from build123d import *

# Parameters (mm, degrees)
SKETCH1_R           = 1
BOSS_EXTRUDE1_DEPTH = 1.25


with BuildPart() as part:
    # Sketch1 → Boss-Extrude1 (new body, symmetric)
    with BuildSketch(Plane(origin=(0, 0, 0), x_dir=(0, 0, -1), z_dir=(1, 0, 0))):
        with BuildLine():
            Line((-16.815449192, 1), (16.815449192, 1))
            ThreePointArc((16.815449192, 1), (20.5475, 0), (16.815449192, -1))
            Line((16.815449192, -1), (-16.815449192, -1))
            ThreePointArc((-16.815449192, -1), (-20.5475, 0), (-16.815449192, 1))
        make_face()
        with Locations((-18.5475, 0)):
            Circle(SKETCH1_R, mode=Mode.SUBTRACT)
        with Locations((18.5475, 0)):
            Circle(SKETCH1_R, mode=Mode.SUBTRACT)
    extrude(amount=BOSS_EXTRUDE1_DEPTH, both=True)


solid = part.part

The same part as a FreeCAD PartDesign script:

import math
import FreeCAD as App
import Part
import Sketcher
Q = App.Units.Quantity

doc = App.newDocument("Part")
body = doc.addObject("PartDesign::Body", "Body")

# Sketch on YZ plane
sketch1 = doc.addObject("Sketcher::SketchObject", "Sketch")
body.addObject(sketch1)
sketch1.AttachmentSupport = (doc.YZ_Plane, [""])
sketch1.MapMode = "FlatFace"
sketch1.addGeometry(Part.LineSegment(App.Vector(1, -16.8, 0), App.Vector(1, 16.8, 0)), False)
sketch1.addGeometry(Part.ArcOfCircle(Part.Circle(App.Vector(0, 18.5, 0), App.Vector(0, 0, 1), 2), math.radians(-60), math.radians(240)), False)
sketch1.addGeometry(Part.LineSegment(App.Vector(-1, 16.8, 0), App.Vector(-1, -16.8, 0)), False)
sketch1.addGeometry(Part.ArcOfCircle(Part.Circle(App.Vector(0, -18.5, 0), App.Vector(0, 0, 1), 2), math.radians(120), math.radians(420)), False)
sketch1.addGeometry(Part.Circle(App.Vector(0, -18.5, 0), App.Vector(0, 0, 1), 1), False)
sketch1.addGeometry(Part.Circle(App.Vector(0, 18.5, 0), App.Vector(0, 0, 1), 1), False)
sketch1.addConstraint(Sketcher.Constraint("Coincident", 0, 2, 1, 1))
sketch1.addConstraint(Sketcher.Constraint("Coincident", 1, 2, 2, 1))
sketch1.addConstraint(Sketcher.Constraint("Coincident", 2, 2, 3, 1))
sketch1.addConstraint(Sketcher.Constraint("Coincident", 3, 2, 0, 1))
sketch1.addConstraint(Sketcher.Constraint("Vertical", 0))
sketch1.addConstraint(Sketcher.Constraint("Vertical", 2))
sketch1.addConstraint(Sketcher.Constraint("Coincident", 4, 3, 3, 3))
sketch1.addConstraint(Sketcher.Constraint("Coincident", 5, 3, 1, 3))
sketch1.addConstraint(Sketcher.Constraint("Equal", 1, 3))
sketch1.addConstraint(Sketcher.Constraint("Equal", 4, 5))
sketch1.addConstraint(Sketcher.Constraint("Symmetric", 1, 3, 3, 3, -1, 1))
sketch1.addConstraint(Sketcher.Constraint("Symmetric", 0, 2, 1, 2, -2))
sketch1.addConstraint(Sketcher.Constraint("Diameter", 4, Q("2 mm")))
sketch1.addConstraint(Sketcher.Constraint("Radius", 1, Q("2 mm")))
sketch1.addConstraint(Sketcher.Constraint("DistanceX", -1, 1, 0, 2, Q("1 mm")))
sketch1.addConstraint(Sketcher.Constraint("DistanceY", 0, 1, 0, 2, Q("33.630898 mm")))
pad1 = doc.addObject("PartDesign::Pad", "Pad")
body.addObject(pad1)
pad1.Profile = sketch1
pad1.Length = 2.5
pad1.Midplane = True

doc.recompute()
